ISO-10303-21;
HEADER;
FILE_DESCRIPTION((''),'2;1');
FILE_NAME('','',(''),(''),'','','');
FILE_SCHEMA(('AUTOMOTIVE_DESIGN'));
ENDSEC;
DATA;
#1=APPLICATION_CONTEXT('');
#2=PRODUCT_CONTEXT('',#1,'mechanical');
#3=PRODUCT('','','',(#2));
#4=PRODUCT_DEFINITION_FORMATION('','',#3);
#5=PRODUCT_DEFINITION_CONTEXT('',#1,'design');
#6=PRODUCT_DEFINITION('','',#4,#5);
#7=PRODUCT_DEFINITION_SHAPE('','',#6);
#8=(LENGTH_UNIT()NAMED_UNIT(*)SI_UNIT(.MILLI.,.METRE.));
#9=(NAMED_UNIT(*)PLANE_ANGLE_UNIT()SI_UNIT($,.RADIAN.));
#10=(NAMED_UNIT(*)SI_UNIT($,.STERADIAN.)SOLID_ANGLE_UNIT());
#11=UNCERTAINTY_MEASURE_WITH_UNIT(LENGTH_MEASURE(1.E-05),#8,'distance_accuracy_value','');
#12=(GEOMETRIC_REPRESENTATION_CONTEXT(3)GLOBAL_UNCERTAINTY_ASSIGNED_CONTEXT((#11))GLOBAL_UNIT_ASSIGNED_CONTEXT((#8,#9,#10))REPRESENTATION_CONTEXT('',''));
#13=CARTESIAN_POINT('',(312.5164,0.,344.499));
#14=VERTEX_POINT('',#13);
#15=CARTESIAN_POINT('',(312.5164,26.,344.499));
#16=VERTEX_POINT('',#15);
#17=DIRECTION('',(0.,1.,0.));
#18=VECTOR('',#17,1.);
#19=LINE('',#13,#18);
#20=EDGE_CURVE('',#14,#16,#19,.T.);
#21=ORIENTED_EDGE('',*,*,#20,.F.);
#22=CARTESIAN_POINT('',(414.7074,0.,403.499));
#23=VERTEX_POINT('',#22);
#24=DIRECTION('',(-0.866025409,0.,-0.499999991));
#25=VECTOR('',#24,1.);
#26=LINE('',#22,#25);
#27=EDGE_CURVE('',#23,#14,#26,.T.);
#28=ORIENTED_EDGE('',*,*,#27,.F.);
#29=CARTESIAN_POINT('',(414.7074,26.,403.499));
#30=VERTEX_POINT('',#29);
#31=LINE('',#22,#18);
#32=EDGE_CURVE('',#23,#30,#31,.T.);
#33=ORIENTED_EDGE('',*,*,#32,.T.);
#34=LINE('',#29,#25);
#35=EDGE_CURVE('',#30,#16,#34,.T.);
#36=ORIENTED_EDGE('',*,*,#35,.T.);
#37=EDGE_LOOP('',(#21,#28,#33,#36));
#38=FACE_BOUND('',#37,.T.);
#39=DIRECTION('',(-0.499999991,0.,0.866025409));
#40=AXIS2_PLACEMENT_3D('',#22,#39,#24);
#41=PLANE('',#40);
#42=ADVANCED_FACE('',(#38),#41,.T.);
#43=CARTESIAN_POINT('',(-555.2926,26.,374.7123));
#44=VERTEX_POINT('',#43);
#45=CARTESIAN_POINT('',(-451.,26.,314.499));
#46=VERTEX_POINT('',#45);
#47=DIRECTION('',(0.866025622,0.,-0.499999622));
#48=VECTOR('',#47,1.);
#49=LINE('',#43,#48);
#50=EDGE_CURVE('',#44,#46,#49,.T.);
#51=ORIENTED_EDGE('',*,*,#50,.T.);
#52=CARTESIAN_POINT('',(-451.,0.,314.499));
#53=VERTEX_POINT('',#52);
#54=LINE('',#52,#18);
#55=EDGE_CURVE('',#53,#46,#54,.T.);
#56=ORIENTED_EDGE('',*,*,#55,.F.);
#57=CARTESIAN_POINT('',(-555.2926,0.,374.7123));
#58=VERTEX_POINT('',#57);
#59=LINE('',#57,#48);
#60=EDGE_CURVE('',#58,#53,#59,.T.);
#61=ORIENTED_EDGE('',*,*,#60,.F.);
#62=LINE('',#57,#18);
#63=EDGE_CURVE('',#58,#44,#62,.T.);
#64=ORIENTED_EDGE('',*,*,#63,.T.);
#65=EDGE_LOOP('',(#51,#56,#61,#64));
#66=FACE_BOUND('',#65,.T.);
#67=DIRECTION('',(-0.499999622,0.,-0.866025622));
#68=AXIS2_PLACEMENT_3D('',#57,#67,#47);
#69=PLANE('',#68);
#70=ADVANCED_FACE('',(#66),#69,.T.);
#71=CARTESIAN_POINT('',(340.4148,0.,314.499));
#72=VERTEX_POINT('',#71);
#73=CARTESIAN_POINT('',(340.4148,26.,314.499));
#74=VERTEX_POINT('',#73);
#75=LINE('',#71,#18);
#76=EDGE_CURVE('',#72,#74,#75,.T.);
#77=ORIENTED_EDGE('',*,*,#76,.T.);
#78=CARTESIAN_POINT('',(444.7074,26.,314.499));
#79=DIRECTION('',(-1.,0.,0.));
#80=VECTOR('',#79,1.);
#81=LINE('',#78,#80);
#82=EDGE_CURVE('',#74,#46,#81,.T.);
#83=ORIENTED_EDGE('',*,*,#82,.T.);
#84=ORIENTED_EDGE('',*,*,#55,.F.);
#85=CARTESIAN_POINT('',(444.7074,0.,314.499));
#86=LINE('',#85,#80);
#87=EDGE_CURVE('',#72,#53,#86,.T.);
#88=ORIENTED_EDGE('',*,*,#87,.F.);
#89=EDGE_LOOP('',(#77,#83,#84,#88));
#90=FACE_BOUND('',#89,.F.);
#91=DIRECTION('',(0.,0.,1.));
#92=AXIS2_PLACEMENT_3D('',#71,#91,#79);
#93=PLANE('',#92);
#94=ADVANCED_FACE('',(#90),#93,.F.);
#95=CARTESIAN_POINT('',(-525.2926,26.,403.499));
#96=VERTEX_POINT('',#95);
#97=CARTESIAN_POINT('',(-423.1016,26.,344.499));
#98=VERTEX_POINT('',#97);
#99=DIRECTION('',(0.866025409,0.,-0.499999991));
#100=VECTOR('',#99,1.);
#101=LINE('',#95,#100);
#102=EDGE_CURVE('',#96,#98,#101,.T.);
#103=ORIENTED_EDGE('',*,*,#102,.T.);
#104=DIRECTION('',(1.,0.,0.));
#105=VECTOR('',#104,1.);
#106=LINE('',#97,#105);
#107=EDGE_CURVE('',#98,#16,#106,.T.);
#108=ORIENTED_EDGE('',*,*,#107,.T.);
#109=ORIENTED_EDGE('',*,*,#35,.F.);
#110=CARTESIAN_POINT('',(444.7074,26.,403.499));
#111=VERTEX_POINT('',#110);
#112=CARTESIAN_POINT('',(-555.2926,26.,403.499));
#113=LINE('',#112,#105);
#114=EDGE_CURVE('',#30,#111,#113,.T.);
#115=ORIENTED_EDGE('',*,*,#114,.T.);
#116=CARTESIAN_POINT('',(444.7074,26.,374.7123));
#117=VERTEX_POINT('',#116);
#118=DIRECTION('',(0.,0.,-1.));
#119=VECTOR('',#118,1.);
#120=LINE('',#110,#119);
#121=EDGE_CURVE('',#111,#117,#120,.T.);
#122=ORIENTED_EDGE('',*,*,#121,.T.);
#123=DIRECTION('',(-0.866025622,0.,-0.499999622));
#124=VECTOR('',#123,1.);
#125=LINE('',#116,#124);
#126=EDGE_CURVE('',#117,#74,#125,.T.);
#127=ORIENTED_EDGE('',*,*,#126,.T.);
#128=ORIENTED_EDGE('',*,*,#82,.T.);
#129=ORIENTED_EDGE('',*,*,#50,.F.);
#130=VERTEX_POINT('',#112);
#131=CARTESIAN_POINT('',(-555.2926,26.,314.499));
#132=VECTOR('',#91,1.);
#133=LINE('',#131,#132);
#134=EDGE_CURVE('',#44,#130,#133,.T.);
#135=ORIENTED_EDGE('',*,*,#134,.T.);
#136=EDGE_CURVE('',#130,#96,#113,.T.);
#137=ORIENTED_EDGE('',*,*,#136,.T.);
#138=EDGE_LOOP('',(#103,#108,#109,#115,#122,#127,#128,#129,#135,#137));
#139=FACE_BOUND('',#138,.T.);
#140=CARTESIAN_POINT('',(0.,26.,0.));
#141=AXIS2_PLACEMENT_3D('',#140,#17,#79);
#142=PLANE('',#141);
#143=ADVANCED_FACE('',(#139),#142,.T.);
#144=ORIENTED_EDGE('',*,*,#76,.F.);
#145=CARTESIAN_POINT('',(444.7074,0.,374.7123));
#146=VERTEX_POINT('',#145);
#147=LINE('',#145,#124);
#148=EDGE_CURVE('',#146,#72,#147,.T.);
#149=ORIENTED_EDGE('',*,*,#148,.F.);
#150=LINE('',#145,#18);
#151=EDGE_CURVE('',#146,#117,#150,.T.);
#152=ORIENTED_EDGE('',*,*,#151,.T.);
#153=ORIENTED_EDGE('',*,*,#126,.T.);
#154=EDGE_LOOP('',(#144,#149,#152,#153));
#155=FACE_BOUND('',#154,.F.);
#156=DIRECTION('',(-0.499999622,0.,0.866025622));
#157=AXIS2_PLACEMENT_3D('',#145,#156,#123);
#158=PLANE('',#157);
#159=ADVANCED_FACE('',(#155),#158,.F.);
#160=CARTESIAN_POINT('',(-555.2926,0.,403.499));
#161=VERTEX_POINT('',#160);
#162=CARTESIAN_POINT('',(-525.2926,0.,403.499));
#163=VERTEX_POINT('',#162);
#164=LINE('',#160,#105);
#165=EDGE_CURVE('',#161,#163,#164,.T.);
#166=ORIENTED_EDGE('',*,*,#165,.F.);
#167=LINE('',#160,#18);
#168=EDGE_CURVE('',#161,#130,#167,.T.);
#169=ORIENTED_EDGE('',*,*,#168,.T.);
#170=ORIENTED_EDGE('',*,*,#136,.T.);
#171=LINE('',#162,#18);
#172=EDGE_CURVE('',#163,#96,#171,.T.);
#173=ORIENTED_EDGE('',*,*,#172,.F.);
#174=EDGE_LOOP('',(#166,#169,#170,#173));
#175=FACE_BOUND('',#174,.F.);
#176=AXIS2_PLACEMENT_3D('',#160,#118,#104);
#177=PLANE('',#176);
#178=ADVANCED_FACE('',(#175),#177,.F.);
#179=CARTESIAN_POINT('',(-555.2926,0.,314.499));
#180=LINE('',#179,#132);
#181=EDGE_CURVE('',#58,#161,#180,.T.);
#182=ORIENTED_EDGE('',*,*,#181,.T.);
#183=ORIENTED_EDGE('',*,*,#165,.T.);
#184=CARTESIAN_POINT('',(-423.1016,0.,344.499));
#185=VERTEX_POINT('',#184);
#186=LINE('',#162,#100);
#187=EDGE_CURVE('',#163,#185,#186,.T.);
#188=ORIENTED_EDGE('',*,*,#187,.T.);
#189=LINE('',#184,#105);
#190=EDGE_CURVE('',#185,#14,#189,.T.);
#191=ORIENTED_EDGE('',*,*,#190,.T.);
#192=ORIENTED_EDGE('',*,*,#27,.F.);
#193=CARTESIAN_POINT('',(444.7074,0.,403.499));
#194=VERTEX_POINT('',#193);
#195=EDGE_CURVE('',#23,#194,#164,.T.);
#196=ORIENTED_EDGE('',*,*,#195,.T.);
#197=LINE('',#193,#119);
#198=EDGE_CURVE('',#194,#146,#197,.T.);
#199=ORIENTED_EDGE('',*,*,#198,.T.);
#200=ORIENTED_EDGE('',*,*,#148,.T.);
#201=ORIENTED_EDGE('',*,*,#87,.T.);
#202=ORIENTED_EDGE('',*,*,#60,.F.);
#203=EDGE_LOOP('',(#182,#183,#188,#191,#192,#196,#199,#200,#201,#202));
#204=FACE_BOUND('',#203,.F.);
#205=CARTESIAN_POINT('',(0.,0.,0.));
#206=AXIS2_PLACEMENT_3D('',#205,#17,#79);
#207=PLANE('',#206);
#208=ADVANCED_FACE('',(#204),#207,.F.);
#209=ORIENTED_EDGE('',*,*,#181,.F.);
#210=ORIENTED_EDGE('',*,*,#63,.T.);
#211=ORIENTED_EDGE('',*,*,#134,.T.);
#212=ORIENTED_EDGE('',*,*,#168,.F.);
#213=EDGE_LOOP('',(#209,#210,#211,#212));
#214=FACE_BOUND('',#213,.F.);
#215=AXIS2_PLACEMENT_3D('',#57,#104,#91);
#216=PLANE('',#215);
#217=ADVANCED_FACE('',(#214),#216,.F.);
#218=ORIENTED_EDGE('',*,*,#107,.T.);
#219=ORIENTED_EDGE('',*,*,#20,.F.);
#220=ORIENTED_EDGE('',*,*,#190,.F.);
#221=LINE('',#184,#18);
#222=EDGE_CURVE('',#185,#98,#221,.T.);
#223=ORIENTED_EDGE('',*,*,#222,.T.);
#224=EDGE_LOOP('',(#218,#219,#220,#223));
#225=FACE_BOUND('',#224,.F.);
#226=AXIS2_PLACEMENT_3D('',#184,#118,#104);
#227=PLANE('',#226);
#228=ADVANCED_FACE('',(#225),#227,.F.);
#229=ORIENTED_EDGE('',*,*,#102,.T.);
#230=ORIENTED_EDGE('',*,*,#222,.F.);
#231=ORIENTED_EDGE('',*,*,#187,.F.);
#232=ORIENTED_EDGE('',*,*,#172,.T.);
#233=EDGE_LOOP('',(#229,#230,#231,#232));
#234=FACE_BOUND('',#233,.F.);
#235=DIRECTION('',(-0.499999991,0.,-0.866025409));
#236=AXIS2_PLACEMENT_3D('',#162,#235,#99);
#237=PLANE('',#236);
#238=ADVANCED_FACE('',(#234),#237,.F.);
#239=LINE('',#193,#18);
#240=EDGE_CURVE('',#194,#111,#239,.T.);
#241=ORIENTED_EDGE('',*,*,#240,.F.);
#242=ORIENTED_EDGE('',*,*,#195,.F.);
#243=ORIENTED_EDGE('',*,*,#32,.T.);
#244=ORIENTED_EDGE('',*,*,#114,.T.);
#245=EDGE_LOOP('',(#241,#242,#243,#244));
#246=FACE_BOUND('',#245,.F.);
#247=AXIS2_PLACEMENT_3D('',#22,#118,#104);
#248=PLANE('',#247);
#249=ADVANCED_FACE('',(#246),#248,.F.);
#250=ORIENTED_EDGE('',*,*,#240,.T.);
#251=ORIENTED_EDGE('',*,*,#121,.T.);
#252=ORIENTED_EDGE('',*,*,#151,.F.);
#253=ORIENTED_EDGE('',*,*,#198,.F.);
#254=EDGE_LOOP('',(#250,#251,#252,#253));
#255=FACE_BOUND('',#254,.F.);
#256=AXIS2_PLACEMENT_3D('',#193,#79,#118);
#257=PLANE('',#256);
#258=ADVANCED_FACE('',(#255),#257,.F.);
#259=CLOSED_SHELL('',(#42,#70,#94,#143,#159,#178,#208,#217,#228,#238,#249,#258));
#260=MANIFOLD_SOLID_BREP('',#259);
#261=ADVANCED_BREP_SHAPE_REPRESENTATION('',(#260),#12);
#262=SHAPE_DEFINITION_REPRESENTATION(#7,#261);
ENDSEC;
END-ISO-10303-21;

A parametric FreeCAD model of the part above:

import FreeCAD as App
import Part
import Sketcher
Q = App.Units.Quantity


def add_polygon(sketch, points):
    """Adds a closed chain of lines whose ends are joined by coincident constraints."""
    first, n = sketch.GeometryCount, len(points)
    for a, b in zip(points, points[1:] + points[:1]):
        sketch.addGeometry(Part.LineSegment(App.Vector(*a, 0), App.Vector(*b, 0)), False)
    for i in range(n):
        sketch.addConstraint(Sketcher.Constraint("Coincident", first + i, 2, first + (i + 1) % n, 1))

doc = App.newDocument("Part")
body = doc.addObject("PartDesign::Body", "Body")

# Sketch on XZ plane
sketch1 = body.newObject("Sketcher::SketchObject", "Sketch")
sketch1.AttachmentSupport = (doc.getObject("XZ_Plane"), [""])
sketch1.MapMode = "FlatFace"
add_polygon(sketch1, [(-555.2926, 374.7123), (-555.2926, 403.499), (-525.2926, 403.499), (-423.1016, 344.499), (312.5164, 344.499), (414.7074, 403.499), (444.7074, 403.499), (444.7074, 374.7123), (340.4148, 314.499), (-451, 314.499)])  # lines 0-9
sketch1.addConstraint(Sketcher.Constraint("Vertical", 0))
sketch1.addConstraint(Sketcher.Constraint("Horizontal", 1))
sketch1.addConstraint(Sketcher.Constraint("Horizontal", 3))
sketch1.addConstraint(Sketcher.Constraint("Horizontal", 5))
sketch1.addConstraint(Sketcher.Constraint("Vertical", 6))
sketch1.addConstraint(Sketcher.Constraint("Horizontal", 8))
sketch1.addConstraint(Sketcher.Constraint("Parallel", 4, 7))
sketch1.addConstraint(Sketcher.Constraint("Parallel", 2, 9))
sketch1.addConstraint(Sketcher.Constraint("Horizontal", 1, 2, 4, 2))
sketch1.addConstraint(Sketcher.Constraint("Horizontal", 6, 2, 9, 2))
sketch1.addConstraint(Sketcher.Constraint("Equal", 1, 5))
sketch1.addConstraint(Sketcher.Constraint("Equal", 2, 4))
sketch1.addConstraint(Sketcher.Constraint("DistanceX", 1, 1, 1, 2, 30.0))
sketch1.addConstraint(Sketcher.Constraint("Angle", 2, Q("-30 deg")))
sketch1.addConstraint(Sketcher.Constraint("DistanceX", 0, 2, 5, 2, 1000.0))
sketch1.addConstraint(Sketcher.Constraint("DistanceY", 7, 2, 3, 2, 30.0))
sketch1.addConstraint(Sketcher.Constraint("DistanceY", 7, 2, 4, 2, 89.0))
sketch1.addConstraint(Sketcher.Constraint("DistanceX", 8, 2, -1, 1, 451.0))
sketch1.addConstraint(Sketcher.Constraint("DistanceX", 8, 2, 8, 1, 791.4148))
sketch1.addConstraint(Sketcher.Constraint("DistanceY", -1, 1, 0, 2, 403.499))
pad1 = body.newObject("PartDesign::Pad", "Pad")
pad1.Profile = sketch1
pad1.Length = 26
pad1.Reversed = True

doc.recompute()
